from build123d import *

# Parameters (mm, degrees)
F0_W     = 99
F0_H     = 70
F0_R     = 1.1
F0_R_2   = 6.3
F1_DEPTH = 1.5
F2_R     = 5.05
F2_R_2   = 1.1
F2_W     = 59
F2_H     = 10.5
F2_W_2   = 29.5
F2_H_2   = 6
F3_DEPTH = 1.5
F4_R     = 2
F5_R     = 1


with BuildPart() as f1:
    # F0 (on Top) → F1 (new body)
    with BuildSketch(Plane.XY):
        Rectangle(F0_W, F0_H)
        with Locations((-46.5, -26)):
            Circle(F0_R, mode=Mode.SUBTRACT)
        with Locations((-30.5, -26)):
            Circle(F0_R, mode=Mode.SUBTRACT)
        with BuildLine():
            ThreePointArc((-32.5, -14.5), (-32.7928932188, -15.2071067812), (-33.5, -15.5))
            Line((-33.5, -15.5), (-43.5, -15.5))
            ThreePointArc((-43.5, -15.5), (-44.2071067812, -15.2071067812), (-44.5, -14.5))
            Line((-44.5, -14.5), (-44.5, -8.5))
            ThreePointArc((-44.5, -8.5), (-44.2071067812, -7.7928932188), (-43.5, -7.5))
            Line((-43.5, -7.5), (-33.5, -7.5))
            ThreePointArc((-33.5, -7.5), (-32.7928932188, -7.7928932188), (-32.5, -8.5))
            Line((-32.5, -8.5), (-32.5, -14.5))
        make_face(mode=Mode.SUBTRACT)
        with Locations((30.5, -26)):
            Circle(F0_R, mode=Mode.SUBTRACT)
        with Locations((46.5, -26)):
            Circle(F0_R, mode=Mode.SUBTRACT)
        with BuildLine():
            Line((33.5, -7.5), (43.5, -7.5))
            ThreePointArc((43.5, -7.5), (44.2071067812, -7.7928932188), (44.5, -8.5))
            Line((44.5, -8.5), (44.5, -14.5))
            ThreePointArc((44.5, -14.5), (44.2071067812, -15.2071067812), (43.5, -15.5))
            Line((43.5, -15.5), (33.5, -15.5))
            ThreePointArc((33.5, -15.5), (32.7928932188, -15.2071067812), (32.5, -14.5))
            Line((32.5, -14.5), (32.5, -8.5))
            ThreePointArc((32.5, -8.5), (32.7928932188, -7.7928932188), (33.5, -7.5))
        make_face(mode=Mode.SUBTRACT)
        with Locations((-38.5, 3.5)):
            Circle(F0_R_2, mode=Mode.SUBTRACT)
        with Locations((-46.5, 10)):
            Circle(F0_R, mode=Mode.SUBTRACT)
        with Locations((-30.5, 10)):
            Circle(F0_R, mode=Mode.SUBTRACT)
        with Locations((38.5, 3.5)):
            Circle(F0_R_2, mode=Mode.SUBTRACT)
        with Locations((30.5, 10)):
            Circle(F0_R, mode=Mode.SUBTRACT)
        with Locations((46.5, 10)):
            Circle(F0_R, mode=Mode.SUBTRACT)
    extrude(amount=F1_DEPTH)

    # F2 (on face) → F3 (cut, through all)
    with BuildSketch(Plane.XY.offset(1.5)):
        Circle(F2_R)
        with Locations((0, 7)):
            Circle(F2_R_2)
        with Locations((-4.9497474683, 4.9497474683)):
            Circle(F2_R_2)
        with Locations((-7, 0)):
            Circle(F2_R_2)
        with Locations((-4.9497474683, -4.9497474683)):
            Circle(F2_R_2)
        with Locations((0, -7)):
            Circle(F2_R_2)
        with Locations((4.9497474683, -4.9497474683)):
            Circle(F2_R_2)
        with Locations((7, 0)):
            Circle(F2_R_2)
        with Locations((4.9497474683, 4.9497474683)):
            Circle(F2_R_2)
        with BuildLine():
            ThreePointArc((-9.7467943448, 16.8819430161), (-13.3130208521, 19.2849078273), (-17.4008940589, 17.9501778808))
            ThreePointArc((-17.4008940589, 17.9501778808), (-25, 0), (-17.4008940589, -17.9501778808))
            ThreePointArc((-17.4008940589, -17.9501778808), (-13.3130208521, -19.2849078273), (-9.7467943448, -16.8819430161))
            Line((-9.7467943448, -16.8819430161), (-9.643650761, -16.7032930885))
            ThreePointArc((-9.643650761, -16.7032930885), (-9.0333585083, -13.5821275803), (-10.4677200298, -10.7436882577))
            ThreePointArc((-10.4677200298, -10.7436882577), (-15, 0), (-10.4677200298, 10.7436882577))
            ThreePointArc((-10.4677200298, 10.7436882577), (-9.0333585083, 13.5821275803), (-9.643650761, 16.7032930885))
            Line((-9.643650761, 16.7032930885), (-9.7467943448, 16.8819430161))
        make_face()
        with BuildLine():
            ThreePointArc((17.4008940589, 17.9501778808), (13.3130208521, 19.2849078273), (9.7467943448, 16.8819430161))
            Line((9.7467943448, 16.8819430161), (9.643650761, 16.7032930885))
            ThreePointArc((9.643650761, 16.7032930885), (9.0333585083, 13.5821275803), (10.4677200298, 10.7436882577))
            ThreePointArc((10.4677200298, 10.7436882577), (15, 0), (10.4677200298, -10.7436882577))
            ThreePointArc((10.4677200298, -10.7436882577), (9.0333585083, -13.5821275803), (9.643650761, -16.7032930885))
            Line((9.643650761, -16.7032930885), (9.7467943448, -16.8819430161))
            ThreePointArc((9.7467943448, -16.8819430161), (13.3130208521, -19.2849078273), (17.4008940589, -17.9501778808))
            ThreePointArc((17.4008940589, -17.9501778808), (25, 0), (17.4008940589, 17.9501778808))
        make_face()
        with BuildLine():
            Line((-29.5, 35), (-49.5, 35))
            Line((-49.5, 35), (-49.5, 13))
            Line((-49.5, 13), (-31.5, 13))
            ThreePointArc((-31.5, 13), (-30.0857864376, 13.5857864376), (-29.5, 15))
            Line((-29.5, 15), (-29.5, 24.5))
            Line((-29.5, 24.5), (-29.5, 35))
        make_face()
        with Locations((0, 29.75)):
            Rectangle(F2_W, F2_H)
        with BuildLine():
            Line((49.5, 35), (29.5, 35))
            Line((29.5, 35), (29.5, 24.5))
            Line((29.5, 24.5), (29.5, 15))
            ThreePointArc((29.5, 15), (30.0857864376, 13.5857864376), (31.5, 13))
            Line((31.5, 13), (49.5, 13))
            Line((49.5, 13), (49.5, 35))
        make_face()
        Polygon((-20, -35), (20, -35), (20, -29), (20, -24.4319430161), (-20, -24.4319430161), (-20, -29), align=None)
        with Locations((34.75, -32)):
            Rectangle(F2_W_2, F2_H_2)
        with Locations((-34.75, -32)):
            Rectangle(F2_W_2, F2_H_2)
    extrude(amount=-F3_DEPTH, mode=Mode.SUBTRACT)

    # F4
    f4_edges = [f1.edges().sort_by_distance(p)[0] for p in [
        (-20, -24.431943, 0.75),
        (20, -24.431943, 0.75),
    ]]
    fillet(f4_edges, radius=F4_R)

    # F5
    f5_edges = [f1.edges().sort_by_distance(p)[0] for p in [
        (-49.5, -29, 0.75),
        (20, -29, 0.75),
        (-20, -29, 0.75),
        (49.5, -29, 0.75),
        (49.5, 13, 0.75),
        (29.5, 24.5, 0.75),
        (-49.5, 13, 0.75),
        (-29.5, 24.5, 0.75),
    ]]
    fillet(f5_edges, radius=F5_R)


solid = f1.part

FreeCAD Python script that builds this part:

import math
import FreeCAD as App
import Part
import Sketcher

V = App.Vector
Q = App.Units.Quantity


def edges_at(feature, points):
    """Names of the edges that pass closest to the given points."""
    edges = feature.Shape.Edges
    near = lambda p: min(range(len(edges)), key=lambda i: edges[i].distToShape(Part.Vertex(*p))[0])
    return sorted({f"Edge{near(p) + 1}" for p in points})

doc = App.newDocument("Part")
body = doc.addObject("PartDesign::Body", "Body")

# Sketch on XY plane
sketch1 = body.newObject("Sketcher::SketchObject", "Sketch")
sketch1.AttachmentSupport = (doc.getObject("XY_Plane"), [""])
sketch1.MapMode = "FlatFace"
sketch1.addGeometry([
    Part.LineSegment(V(-49.5, 35, 0), V(-49.5, -35, 0)),  # 0
    Part.LineSegment(V(-49.5, -35, 0), V(49.5, -35, 0)),  # 1
    Part.LineSegment(V(49.5, -35, 0), V(49.5, 35, 0)),  # 2
    Part.LineSegment(V(49.5, 35, 0), V(-49.5, 35, 0)),  # 3
    Part.Circle(V(-46.5, -26, 0), V(0, 0, 1), 1.1),  # 4
    Part.Circle(V(-30.5, -26, 0), V(0, 0, 1), 1.1),  # 5
    Part.LineSegment(V(-32.5, -8.5, 0), V(-32.5, -14.5, 0)),  # 6
    Part.ArcOfCircle(Part.Circle(V(-33.5, -14.5, 0), V(0, 0, 1), 1), math.radians(-90), math.radians(0)),  # 7
    Part.LineSegment(V(-33.5, -15.5, 0), V(-43.5, -15.5, 0)),  # 8
    Part.ArcOfCircle(Part.Circle(V(-43.5, -14.5, 0), V(0, 0, 1), 1), math.radians(180), math.radians(270)),  # 9
    Part.LineSegment(V(-44.5, -14.5, 0), V(-44.5, -8.5, 0)),  # 10
    Part.ArcOfCircle(Part.Circle(V(-43.5, -8.5, 0), V(0, 0, 1), 1), math.radians(90), math.radians(180)),  # 11
    Part.LineSegment(V(-43.5, -7.5, 0), V(-33.5, -7.5, 0)),  # 12
    Part.ArcOfCircle(Part.Circle(V(-33.5, -8.5, 0), V(0, 0, 1), 1), math.radians(0), math.radians(90)),  # 13
    Part.Circle(V(30.5, -26, 0), V(0, 0, 1), 1.1),  # 14
    Part.Circle(V(46.5, -26, 0), V(0, 0, 1), 1.1),  # 15
    Part.ArcOfCircle(Part.Circle(V(33.5, -8.5, 0), V(0, 0, 1), 1), math.radians(90), math.radians(180)),  # 16
    Part.LineSegment(V(33.5, -7.5, 0), V(43.5, -7.5, 0)),  # 17
    Part.ArcOfCircle(Part.Circle(V(43.5, -8.5, 0), V(0, 0, 1), 1), math.radians(0), math.radians(90)),  # 18
    Part.LineSegment(V(44.5, -8.5, 0), V(44.5, -14.5, 0)),  # 19
    Part.ArcOfCircle(Part.Circle(V(43.5, -14.5, 0), V(0, 0, 1), 1), math.radians(-90), math.radians(0)),  # 20
    Part.LineSegment(V(43.5, -15.5, 0), V(33.5, -15.5, 0)),  # 21
    Part.ArcOfCircle(Part.Circle(V(33.5, -14.5, 0), V(0, 0, 1), 1), math.radians(180), math.radians(270)),  # 22
    Part.LineSegment(V(32.5, -14.5, 0), V(32.5, -8.5, 0)),  # 23
    Part.Circle(V(-38.5, 3.5, 0), V(0, 0, 1), 6.3),  # 24
    Part.Circle(V(-46.5, 10, 0), V(0, 0, 1), 1.1),  # 25
    Part.Circle(V(-30.5, 10, 0), V(0, 0, 1), 1.1),  # 26
    Part.Circle(V(38.5, 3.5, 0), V(0, 0, 1), 6.3),  # 27
    Part.Circle(V(30.5, 10, 0), V(0, 0, 1), 1.1),  # 28
    Part.Circle(V(46.5, 10, 0), V(0, 0, 1), 1.1),  # 29
], False)
sketch1.addConstraint([
    Sketcher.Constraint("Coincident", 0, 2, 1, 1),
    Sketcher.Constraint("Coincident", 1, 2, 2, 1),
    Sketcher.Constraint("Coincident", 2, 2, 3, 1),
    Sketcher.Constraint("Coincident", 3, 2, 0, 1),
    Sketcher.Constraint("Tangent", 6, 2, 7, 2),
    Sketcher.Constraint("Tangent", 7, 1, 8, 1),
    Sketcher.Constraint("Tangent", 8, 2, 9, 2),
    Sketcher.Constraint("Tangent", 9, 1, 10, 1),
    Sketcher.Constraint("Tangent", 10, 2, 11, 2),
    Sketcher.Constraint("Tangent", 11, 1, 12, 1),
    Sketcher.Constraint("Tangent", 12, 2, 13, 2),
    Sketcher.Constraint("Tangent", 13, 1, 6, 1),
    Sketcher.Constraint("Tangent", 16, 1, 17, 1),
    Sketcher.Constraint("Tangent", 17, 2, 18, 2),
    Sketcher.Constraint("Tangent", 18, 1, 19, 1),
    Sketcher.Constraint("Tangent", 19, 2, 20, 2),
    Sketcher.Constraint("Tangent", 20, 1, 21, 1),
    Sketcher.Constraint("Tangent", 21, 2, 22, 2),
    Sketcher.Constraint("Tangent", 22, 1, 23, 1),
    Sketcher.Constraint("Tangent", 23, 2, 16, 2),
    Sketcher.Constraint("Vertical", 0),
    Sketcher.Constraint("Horizontal", 1),
    Sketcher.Constraint("Vertical", 2),
    Sketcher.Constraint("Horizontal", 3),
    Sketcher.Constraint("Vertical", 6),
    Sketcher.Constraint("Horizontal", 8),
    Sketcher.Constraint("Vertical", 10),
    Sketcher.Constraint("Horizontal", 12),
    Sketcher.Constraint("Horizontal", 17),
    Sketcher.Constraint("Vertical", 19),
    Sketcher.Constraint("Horizontal", 21),
    Sketcher.Constraint("Vertical", 23),
    Sketcher.Constraint("Equal", 4, 5),
    Sketcher.Constraint("Equal", 7, 9),
    Sketcher.Constraint("Equal", 9, 11),
    Sketcher.Constraint("Equal", 11, 13),
    Sketcher.Constraint("Equal", 5, 14),
    Sketcher.Constraint("Equal", 14, 15),
    Sketcher.Constraint("Equal", 13, 16),
    Sketcher.Constraint("Equal", 16, 18),
    Sketcher.Constraint("Equal", 18, 20),
    Sketcher.Constraint("Equal", 20, 22),
    Sketcher.Constraint("Equal", 15, 25),
    Sketcher.Constraint("Equal", 25, 26),
    Sketcher.Constraint("Equal", 24, 27),
    Sketcher.Constraint("Equal", 26, 28),
    Sketcher.Constraint("Equal", 28, 29),
    Sketcher.Constraint("Symmetric", 0, 2, 2, 2, -1, 1),
    Sketcher.Constraint("Symmetric", 5, 3, 14, 3, -2),
    Sketcher.Constraint("Symmetric", 4, 3, 15, 3, -2),
    Sketcher.Constraint("Symmetric", 13, 3, 16, 3, -2),
    Sketcher.Constraint("Symmetric", 9, 3, 20, 3, -2),
    Sketcher.Constraint("Symmetric", 24, 3, 27, 3, -2),
    Sketcher.Constraint("Symmetric", 26, 3, 28, 3, -2),
    Sketcher.Constraint("Symmetric", 25, 3, 29, 3, -2),
    Sketcher.Constraint("Horizontal", 4, 3, 5, 3),
    Sketcher.Constraint("Horizontal", 25, 3, 26, 3),
    Sketcher.Constraint("Vertical", 4, 3, 25, 3),
    Sketcher.Constraint("Vertical", 5, 3, 26, 3),
    Sketcher.Constraint("Radius", 7, Q("1 mm")),
    Sketcher.Constraint("Diameter", 4, Q("2.2 mm")),
    Sketcher.Constraint("Diameter", 24, Q("12.6 mm")),
    Sketcher.Constraint("DistanceX", 1, 1, 1, 2, Q("99 mm")),
    Sketcher.Constraint("DistanceX", 8, 2, 8, 1, Q("10 mm")),
    Sketcher.Constraint("DistanceY", 0, 2, 0, 1, Q("70 mm")),
    Sketcher.Constraint("DistanceY", 6, 2, 6, 1, Q("6 mm")),
    Sketcher.Constraint("DistanceY", 4, 3, -1, 1, Q("26 mm")),
    Sketcher.Constraint("DistanceY", -1, 1, 25, 3, Q("10 mm")),
    Sketcher.Constraint("DistanceX", 4, 3, 5, 3, Q("16 mm")),
    Sketcher.Constraint("DistanceX", 7, 3, 5, 3, Q("3 mm")),
    Sketcher.Constraint("DistanceX", 5, 3, 14, 3, Q("61 mm")),
    Sketcher.Constraint("DistanceX", 11, 3, 24, 3, Q("5 mm")),
    Sketcher.Constraint("DistanceY", 11, 3, 24, 3, Q("12 mm")),
    Sketcher.Constraint("DistanceY", 7, 3, -1, 1, Q("14.5 mm")),
])
pad1 = body.newObject("PartDesign::Pad", "Pad")
pad1.Profile = sketch1
pad1.Length = 1.5

# Sketch on XY plane
sketch2 = body.newObject("Sketcher::SketchObject", "Sketch001")
sketch2.AttachmentSupport = (doc.getObject("XY_Plane"), [""])
sketch2.MapMode = "FlatFace"
sketch2.AttachmentOffset = App.Placement(V(0, 0, 1.5), App.Rotation())
sketch2.addGeometry([
    Part.Circle(V(0, 0, 0), V(0, 0, 1), 5.05),  # 0
    Part.Circle(V(0, 7, 0), V(0, 0, 1), 1.1),  # 1
    Part.Circle(V(-4.95, 4.95, 0), V(0, 0, 1), 1.1),  # 2
    Part.Circle(V(-7, 0, 0), V(0, 0, 1), 1.1),  # 3
    Part.Circle(V(-4.95, -4.95, 0), V(0, 0, 1), 1.1),  # 4
    Part.Circle(V(0, -7, 0), V(0, 0, 1), 1.1),  # 5
    Part.Circle(V(4.95, -4.95, 0), V(0, 0, 1), 1.1),  # 6
    Part.Circle(V(7, 0, 0), V(0, 0, 1), 1.1),  # 7
    Part.Circle(V(4.95, 4.95, 0), V(0, 0, 1), 1.1),  # 8
    Part.ArcOfCircle(Part.Circle(V(-13.99, 14.43, 0), V(0, 0, 1), 4.9), math.radians(30), math.radians(134)),  # 9
    Part.ArcOfCircle(Part.Circle(V(0, 0, 0), V(0, 0, 1), 25), math.radians(134), math.radians(226)),  # 10
    Part.ArcOfCircle(Part.Circle(V(-13.99, -14.43, 0), V(0, 0, 1), 4.9), math.radians(-134), math.radians(-30)),  # 11
    Part.LineSegment(V(-9.75, -16.88, 0), V(-9.64, -16.7, 0)),  # 12
    Part.ArcOfCircle(Part.Circle(V(-13.89, -14.25, 0), V(0, 0, 1), 4.9), math.radians(-30), math.radians(46)),  # 13
    Part.ArcOfCircle(Part.Circle(V(0, 0, 0), V(0, 0, 1), 15), math.radians(134), math.radians(226)),  # 14
    Part.ArcOfCircle(Part.Circle(V(-13.89, 14.25, 0), V(0, 0, 1), 4.9), math.radians(-46), math.radians(30)),  # 15
    Part.LineSegment(V(-9.64, 16.7, 0), V(-9.75, 16.88, 0)),  # 16
    Part.ArcOfCircle(Part.Circle(V(13.99, 14.43, 0), V(0, 0, 1), 4.9), math.radians(46), math.radians(150)),  # 17
    Part.LineSegment(V(9.75, 16.88, 0), V(9.64, 16.7, 0)),  # 18
    Part.ArcOfCircle(Part.Circle(V(13.89, 14.25, 0), V(0, 0, 1), 4.9), math.radians(150), math.radians(226)),  # 19
    Part.ArcOfCircle(Part.Circle(V(0, 0, 0), V(0, 0, 1), 15), math.radians(-46), math.radians(46)),  # 20
    Part.ArcOfCircle(Part.Circle(V(13.89, -14.25, 0), V(0, 0, 1), 4.9), math.radians(134), math.radians(210)),  # 21
    Part.LineSegment(V(9.64, -16.7, 0), V(9.75, -16.88, 0)),  # 22
    Part.ArcOfCircle(Part.Circle(V(13.99, -14.43, 0), V(0, 0, 1), 4.9), math.radians(-150), math.radians(-46)),  # 23
    Part.ArcOfCircle(Part.Circle(V(0, 0, 0), V(0, 0, 1), 25), math.radians(-46), math.radians(46)),  # 24
    Part.LineSegment(V(-49.5, 35, 0), V(-49.5, 13, 0)),  # 25
    Part.LineSegment(V(-49.5, 13, 0), V(-31.5, 13, 0)),  # 26
    Part.ArcOfCircle(Part.Circle(V(-31.5, 15, 0), V(0, 0, 1), 2), math.radians(-90), math.radians(0)),  # 27
    Part.LineSegment(V(-29.5, 15, 0), V(-29.5, 24.5, 0)),  # 28
    Part.LineSegment(V(-29.5, 24.5, 0), V(29.5, 24.5, 0)),  # 29
    Part.LineSegment(V(29.5, 24.5, 0), V(29.5, 15, 0)),  # 30
    Part.ArcOfCircle(Part.Circle(V(31.5, 15, 0), V(0, 0, 1), 2), math.radians(180), math.radians(270)),  # 31
    Part.LineSegment(V(31.5, 13, 0), V(49.5, 13, 0)),  # 32
    Part.LineSegment(V(49.5, 13, 0), V(49.5, 35, 0)),  # 33
    Part.LineSegment(V(49.5, 35, 0), V(-49.5, 35, 0)),  # 34
    Part.LineSegment(V(49.5, -35, 0), V(49.5, -29, 0)),  # 35
    Part.LineSegment(V(49.5, -29, 0), V(20, -29, 0)),  # 36
    Part.LineSegment(V(20, -29, 0), V(20, -24.43, 0)),  # 37
    Part.LineSegment(V(20, -24.43, 0), V(-20, -24.43, 0)),  # 38
    Part.LineSegment(V(-20, -24.43, 0), V(-20, -29, 0)),  # 39
    Part.LineSegment(V(-20, -29, 0), V(-49.5, -29, 0)),  # 40
    Part.LineSegment(V(-49.5, -29, 0), V(-49.5, -35, 0)),  # 41
    Part.LineSegment(V(-49.5, -35, 0), V(49.5, -35, 0)),  # 42
], False)
sketch2.addConstraint([
    Sketcher.Constraint("Tangent", 9, 2, 10, 1),
    Sketcher.Constraint("Tangent", 10, 2, 11, 1),
    Sketcher.Constraint("Tangent", 11, 2, 12, 1),
    Sketcher.Constraint("Tangent", 12, 2, 13, 1),
    Sketcher.Constraint("Tangent", 13, 2, 14, 2),
    Sketcher.Constraint("Tangent", 14, 1, 15, 1),
    Sketcher.Constraint("Tangent", 15, 2, 16, 1),
    Sketcher.Constraint("Tangent", 16, 2, 9, 1),
    Sketcher.Constraint("Tangent", 17, 2, 18, 1),
    Sketcher.Constraint("Tangent", 18, 2, 19, 1),
    Sketcher.Constraint("Tangent", 19, 2, 20, 2),
    Sketcher.Constraint("Tangent", 20, 1, 21, 1),
    Sketcher.Constraint("Tangent", 21, 2, 22, 1),
    Sketcher.Constraint("Tangent", 22, 2, 23, 1),
    Sketcher.Constraint("Tangent", 23, 2, 24, 1),
    Sketcher.Constraint("Tangent", 24, 2, 17, 1),
    Sketcher.Constraint("Coincident", 25, 2, 26, 1),
    Sketcher.Constraint("Tangent", 26, 2, 27, 1),
    Sketcher.Constraint("Tangent", 27, 2, 28, 1),
    Sketcher.Constraint("Coincident", 28, 2, 29, 1),
    Sketcher.Constraint("Coincident", 29, 2, 30, 1),
    Sketcher.Constraint("Tangent", 30, 2, 31, 1),
    Sketcher.Constraint("Tangent", 31, 2, 32, 1),
    Sketcher.Constraint("Coincident", 32, 2, 33, 1),
    Sketcher.Constraint("Coincident", 33, 2, 34, 1),
    Sketcher.Constraint("Coincident", 34, 2, 25, 1),
    Sketcher.Constraint("Coincident", 35, 2, 36, 1),
    Sketcher.Constraint("Coincident", 36, 2, 37, 1),
    Sketcher.Constraint("Coincident", 37, 2, 38, 1),
    Sketcher.Constraint("Coincident", 38, 2, 39, 1),
    Sketcher.Constraint("Coincident", 39, 2, 40, 1),
    Sketcher.Constraint("Coincident", 40, 2, 41, 1),
    Sketcher.Constraint("Coincident", 41, 2, 42, 1),
    Sketcher.Constraint("Coincident", 42, 2, 35, 1),
    Sketcher.Constraint("Vertical", 25),
    Sketcher.Constraint("Horizontal", 26),
    Sketcher.Constraint("Vertical", 28),
    Sketcher.Constraint("Horizontal", 29),
    Sketcher.Constraint("Vertical", 30),
    Sketcher.Constraint("Horizontal", 32),
    Sketcher.Constraint("Vertical", 33),
    Sketcher.Constraint("Horizontal", 34),
    Sketcher.Constraint("Vertical", 35),
    Sketcher.Constraint("Horizontal", 36),
    Sketcher.Constraint("Vertical", 37),
    Sketcher.Constraint("Horizontal", 38),
    Sketcher.Constraint("Vertical", 39),
    Sketcher.Constraint("Horizontal", 40),
    Sketcher.Constraint("Vertical", 41),
    Sketcher.Constraint("Horizontal", 42),
    Sketcher.Constraint("Coincident", 0, 3, -1, 1),
    Sketcher.Constraint("Coincident", 10, 3, -1, 1),
    Sketcher.Constraint("Coincident", 14, 3, -1, 1),
    Sketcher.Constraint("Coincident", 20, 3, -1, 1),
    Sketcher.Constraint("Coincident", 24, 3, -1, 1),
    Sketcher.Constraint("Equal", 1, 2),
    Sketcher.Constraint("Equal", 2, 3),
    Sketcher.Constraint("Equal", 3, 4),
    Sketcher.Constraint("Equal", 4, 5),
    Sketcher.Constraint("Equal", 5, 6),
    Sketcher.Constraint("Equal", 6, 7),
    Sketcher.Constraint("Equal", 7, 8),
    Sketcher.Constraint("Equal", 9, 11),
    Sketcher.Constraint("Equal", 11, 13),
    Sketcher.Constraint("Equal", 13, 15),
    Sketcher.Constraint("Equal", 15, 17),
    Sketcher.Constraint("Equal", 17, 19),
    Sketcher.Constraint("Equal", 14, 20),
    Sketcher.Constraint("Equal", 19, 21),
    Sketcher.Constraint("Equal", 21, 23),
    Sketcher.Constraint("Equal", 10, 24),
    Sketcher.Constraint("Equal", 27, 31),
    Sketcher.Constraint("Symmetric", 1, 3, 5, 3, -1, 1),
    Sketcher.Constraint("Symmetric", 2, 3, 6, 3, -1, 1),
    Sketcher.Constraint("Symmetric", 3, 3, 7, 3, -1, 1),
    Sketcher.Constraint("Symmetric", 4, 3, 8, 3, -1, 1),
    Sketcher.Constraint("Symmetric", 11, 2, 17, 2, -1, 1),
    Sketcher.Constraint("Symmetric", 15, 2, 21, 2, -1, 1),
    Sketcher.Constraint("Symmetric", 33, 2, 41, 2, -1, 1),
    Sketcher.Constraint("Symmetric", 4, 3, 6, 3, -2),
    Sketcher.Constraint("Symmetric", 27, 3, 31, 3, -2),
    Sketcher.Constraint("Symmetric", 16, 2, 17, 2, -2),
    Sketcher.Constraint("Symmetric", 36, 2, 39, 2, -2),
    Sketcher.Constraint("PointOnObject", 1, 3, -2),
    Sketcher.Constraint("PointOnObject", 3, 3, -1),
    Sketcher.Constraint("Vertical", 33, 2, 35, 2),
    Sketcher.Constraint("Vertical", 34, 2, 40, 2),
    Sketcher.Constraint("Radius", 10, Q("25 mm")),
    Sketcher.Constraint("Radius", 14, Q("15 mm")),
    Sketcher.Constraint("Radius", 27, Q("2 mm")),
    Sketcher.Constraint("Diameter", 0, Q("10.1 mm")),
    Sketcher.Constraint("Diameter", 1, Q("2.2 mm")),
    Sketcher.Constraint("Radius", 9, Q("4.9 mm")),
    Sketcher.Constraint("DistanceX", 26, 1, 26, 2, Q("18 mm")),
    Sketcher.Constraint("DistanceX", 29, 1, 29, 2, Q("59 mm")),
    Sketcher.Constraint("DistanceX", 38, 2, 38, 1, Q("40 mm")),
    Sketcher.Constraint("DistanceY", 25, 2, 25, 1, Q("22 mm")),
    Sketcher.Constraint("DistanceY", 35, 1, 35, 2, Q("6 mm")),
    Sketcher.Constraint("Angle", 12, Q("60 deg")),
    Sketcher.Constraint("DistanceY", 28, 1, 28, 2, Q("9.5 mm")),
    Sketcher.Constraint("DistanceY", -1, 1, 1, 3, Q("7 mm")),
    Sketcher.Constraint("DistanceX", 3, 3, -1, 1, Q("7 mm")),
    Sketcher.Constraint("DistanceY", -1, 1, 27, 3, Q("15 mm")),
    Sketcher.Constraint("DistanceY", 37, 2, 23, 3, Q("10 mm")),
    Sketcher.Constraint("DistanceX", 10, 2, 11, 2, Q("7.6541 mm")),
    Sketcher.Constraint("DistanceX", 9, 3, 2, 3, Q("9.040571 mm")),
    Sketcher.Constraint("DistanceY", 2, 3, 9, 2, Q("13.00043 mm")),
])
pocket1 = body.newObject("PartDesign::Pocket", "Pocket")
pocket1.Profile = sketch2
pocket1.Type = "ThroughAll"
doc.recompute()

fillet = body.newObject("PartDesign::Fillet", "Fillet")
fillet.Base = (pocket1, edges_at(pocket1, [(-20, -24.432, 0.75), (20, -24.432, 0.75)]))
fillet.Radius = 2
doc.recompute()

fillet2 = body.newObject("PartDesign::Fillet", "Fillet001")
fillet2.Base = (fillet, edges_at(fillet, [
    (-49.5, -29, 0.75),
    (20, -29, 0.75),
    (-20, -29, 0.75),
    (49.5, -29, 0.75),
    (49.5, 13, 0.75),
    (29.5, 24.5, 0.75),
    (-49.5, 13, 0.75),
    (-29.5, 24.5, 0.75),
]))
fillet2.Radius = 1

doc.recompute()
